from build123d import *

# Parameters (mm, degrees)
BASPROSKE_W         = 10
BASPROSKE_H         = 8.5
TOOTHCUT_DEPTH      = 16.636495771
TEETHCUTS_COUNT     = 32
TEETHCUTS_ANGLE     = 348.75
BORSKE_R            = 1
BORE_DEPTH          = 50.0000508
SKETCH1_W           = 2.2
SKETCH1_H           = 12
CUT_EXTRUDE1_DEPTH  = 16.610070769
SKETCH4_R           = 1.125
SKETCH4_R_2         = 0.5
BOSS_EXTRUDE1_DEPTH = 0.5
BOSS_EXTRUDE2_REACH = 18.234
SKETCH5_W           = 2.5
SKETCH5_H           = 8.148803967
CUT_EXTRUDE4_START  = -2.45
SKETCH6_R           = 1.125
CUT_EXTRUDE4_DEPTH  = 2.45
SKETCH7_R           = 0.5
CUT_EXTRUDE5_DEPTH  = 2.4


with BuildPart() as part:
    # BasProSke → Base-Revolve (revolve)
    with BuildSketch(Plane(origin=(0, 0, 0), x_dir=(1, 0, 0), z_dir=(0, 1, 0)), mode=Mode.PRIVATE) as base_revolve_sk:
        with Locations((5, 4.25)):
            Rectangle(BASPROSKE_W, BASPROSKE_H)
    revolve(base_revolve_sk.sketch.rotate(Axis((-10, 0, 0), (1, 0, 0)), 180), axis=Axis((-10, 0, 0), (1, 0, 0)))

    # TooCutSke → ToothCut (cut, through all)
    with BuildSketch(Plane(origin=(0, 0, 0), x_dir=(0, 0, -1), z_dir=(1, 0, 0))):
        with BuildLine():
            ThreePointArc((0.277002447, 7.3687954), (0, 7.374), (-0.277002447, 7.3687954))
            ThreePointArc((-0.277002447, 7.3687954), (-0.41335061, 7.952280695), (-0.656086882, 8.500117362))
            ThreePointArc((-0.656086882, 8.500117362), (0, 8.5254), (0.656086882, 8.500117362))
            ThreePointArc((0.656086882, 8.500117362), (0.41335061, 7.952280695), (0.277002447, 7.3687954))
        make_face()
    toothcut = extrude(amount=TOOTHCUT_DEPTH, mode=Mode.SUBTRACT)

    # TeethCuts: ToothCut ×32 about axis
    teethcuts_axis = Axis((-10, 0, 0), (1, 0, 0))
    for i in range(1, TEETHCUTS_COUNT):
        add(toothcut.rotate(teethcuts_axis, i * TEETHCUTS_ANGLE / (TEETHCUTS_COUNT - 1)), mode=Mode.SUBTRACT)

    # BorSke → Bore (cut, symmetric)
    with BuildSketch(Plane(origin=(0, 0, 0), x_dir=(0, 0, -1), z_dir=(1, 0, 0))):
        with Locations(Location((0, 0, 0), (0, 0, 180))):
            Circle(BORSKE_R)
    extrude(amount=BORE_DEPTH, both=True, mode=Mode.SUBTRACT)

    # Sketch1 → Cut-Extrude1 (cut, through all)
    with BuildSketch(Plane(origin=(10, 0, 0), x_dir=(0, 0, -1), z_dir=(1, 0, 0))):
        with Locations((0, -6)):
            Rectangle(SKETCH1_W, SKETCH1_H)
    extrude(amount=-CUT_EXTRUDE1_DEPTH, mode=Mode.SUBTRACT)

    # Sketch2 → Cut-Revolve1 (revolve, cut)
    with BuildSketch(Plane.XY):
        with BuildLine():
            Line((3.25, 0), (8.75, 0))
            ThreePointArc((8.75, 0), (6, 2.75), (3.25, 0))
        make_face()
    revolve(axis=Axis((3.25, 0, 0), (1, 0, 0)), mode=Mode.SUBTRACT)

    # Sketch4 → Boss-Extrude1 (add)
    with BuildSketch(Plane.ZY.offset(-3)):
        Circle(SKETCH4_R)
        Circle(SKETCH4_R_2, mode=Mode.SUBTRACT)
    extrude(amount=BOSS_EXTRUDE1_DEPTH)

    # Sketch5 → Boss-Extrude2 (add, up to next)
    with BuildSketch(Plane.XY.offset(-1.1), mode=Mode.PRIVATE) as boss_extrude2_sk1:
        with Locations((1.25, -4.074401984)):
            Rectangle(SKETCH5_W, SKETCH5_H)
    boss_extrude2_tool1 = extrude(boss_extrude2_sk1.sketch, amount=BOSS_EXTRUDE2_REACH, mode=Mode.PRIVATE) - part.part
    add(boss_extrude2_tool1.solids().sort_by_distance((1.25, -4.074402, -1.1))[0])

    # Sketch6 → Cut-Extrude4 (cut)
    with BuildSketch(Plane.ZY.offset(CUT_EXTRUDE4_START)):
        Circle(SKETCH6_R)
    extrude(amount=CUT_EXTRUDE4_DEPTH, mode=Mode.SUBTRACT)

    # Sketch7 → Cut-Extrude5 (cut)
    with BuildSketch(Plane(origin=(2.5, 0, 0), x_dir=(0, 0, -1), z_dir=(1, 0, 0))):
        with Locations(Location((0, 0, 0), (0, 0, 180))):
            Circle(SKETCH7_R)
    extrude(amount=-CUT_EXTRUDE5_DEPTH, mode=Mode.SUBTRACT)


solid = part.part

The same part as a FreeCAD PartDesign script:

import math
import FreeCAD as App
import Part
import Sketcher

V = App.Vector


def add_polygon(sketch, points):
    """Adds a closed chain of lines whose ends are joined by coincident constraints."""
    first, n = sketch.GeometryCount, len(points)
    for a, b in zip(points, points[1:] + points[:1]):
        sketch.addGeometry(Part.LineSegment(App.Vector(*a, 0), App.Vector(*b, 0)), False)
    for i in range(n):
        sketch.addConstraint(Sketcher.Constraint("Coincident", first + i, 2, first + (i + 1) % n, 1))

doc = App.newDocument("Part")
body = doc.addObject("PartDesign::Body", "Body")

# Sketch on XZ plane
sketch1 = body.newObject("Sketcher::SketchObject", "Sketch")
sketch1.AttachmentSupport = (doc.getObject("XZ_Plane"), [""])
sketch1.MapMode = "FlatFace"
add_polygon(sketch1, [(0, -8), (0, 0), (10, 0), (10, -8)])  # lines 0-3
sketch1.addConstraint([
    Sketcher.Constraint("Vertical", 0),
    Sketcher.Constraint("Horizontal", 1),
    Sketcher.Constraint("Vertical", 2),
    Sketcher.Constraint("Horizontal", 3),
    Sketcher.Constraint("Coincident", 0, 2, -1, 1),
    Sketcher.Constraint("DistanceX", 1, 1, 1, 2, 10.0),
    Sketcher.Constraint("DistanceY", 0, 1, 0, 2, 8.5),
])
revolution = body.newObject("PartDesign::Revolution", "Revolution")
revolution.Profile = sketch1
revolution.ReferenceAxis = (sketch1, ["H_Axis"])
revolution.Angle = 360

# Sketch on YZ plane
sketch2 = body.newObject("Sketcher::SketchObject", "Sketch001")
sketch2.AttachmentSupport = (doc.getObject("YZ_Plane"), [""])
sketch2.MapMode = "FlatFace"
sketch2.addGeometry([
    Part.ArcOfCircle(Part.Circle(V(0, 0, 0), V(0, 0, 1), 7.4), math.radians(-2.15), math.radians(2.15)),
    Part.ArcOfCircle(Part.Circle(V(6.9, -3.4, 0), V(0, 0, 1), 3.2), math.radians(61), math.radians(82)),
    Part.ArcOfCircle(Part.Circle(V(0, 0, 0), V(0, 0, 1), 8.5), math.radians(-4.41), math.radians(4.41)),
    Part.ArcOfCircle(Part.Circle(V(6.9, 3.4, 0), V(0, 0, 1), 3.2), math.radians(-82), math.radians(-61)),
], False)
sketch2.addConstraint([
    Sketcher.Constraint("Coincident", 0, 1, 1, 2),
    Sketcher.Constraint("Coincident", 1, 1, 2, 1),
    Sketcher.Constraint("Coincident", 2, 2, 3, 2),
    Sketcher.Constraint("Coincident", 3, 1, 0, 2),
    Sketcher.Constraint("Coincident", 0, 3, -1, 1),
    Sketcher.Constraint("Coincident", 2, 3, -1, 1),
    Sketcher.Constraint("Equal", 1, 3),
    Sketcher.Constraint("Symmetric", 1, 3, 3, 3, -1),
    Sketcher.Constraint("Radius", 1, 3.2),
    Sketcher.Constraint("Radius", 0, 7.374),
    Sketcher.Constraint("Radius", 2, 8.5254),
    Sketcher.Constraint("DistanceX", -1, 1, 1, 3, 6.935581),
    Sketcher.Constraint("DistanceX", 0, 1, 1, 1, 1.131322),
])
pocket1 = body.newObject("PartDesign::Pocket", "Pocket")
pocket1.Profile = sketch2
pocket1.Type = "ThroughAll"
pocket1.Reversed = True
doc.recompute()

polarpattern = body.newObject("PartDesign::PolarPattern", "PolarPattern")
polarpattern.Originals = [pocket1]
polarpattern.Axis = (doc.getObject("X_Axis"), [""])
polarpattern.Angle = 360
polarpattern.Occurrences = 32
body.Tip = polarpattern

# Sketch on YZ plane
sketch3 = body.newObject("Sketcher::SketchObject", "Sketch002")
sketch3.AttachmentSupport = (doc.getObject("YZ_Plane"), [""])
sketch3.MapMode = "FlatFace"
sketch3.addGeometry(Part.Circle(V(0, 0, 0), V(0, 0, 1), 1), False)
sketch3.addConstraint([
    Sketcher.Constraint("Coincident", 0, 3, -1, 1),
    Sketcher.Constraint("Diameter", 0, 2.0),
])
pocket2 = body.newObject("PartDesign::Pocket", "Pocket001")
pocket2.Profile = sketch3
pocket2.Length = 100.000102
pocket2.Midplane = True

# Sketch on YZ plane
sketch4 = body.newObject("Sketcher::SketchObject", "Sketch003")
sketch4.AttachmentSupport = (doc.getObject("YZ_Plane"), [""])
sketch4.MapMode = "FlatFace"
sketch4.AttachmentOffset = App.Placement(V(0, 0, 10), App.Rotation())
add_polygon(sketch4, [(0, 1.1), (-12, 1.1), (-12, -1.1), (0, -1.1)])  # lines 0-3
sketch4.addConstraint([
    Sketcher.Constraint("Horizontal", 0),
    Sketcher.Constraint("Vertical", 1),
    Sketcher.Constraint("Horizontal", 2),
    Sketcher.Constraint("Vertical", 3),
    Sketcher.Constraint("Symmetric", 2, 2, 3, 2, -1, 1),
    Sketcher.Constraint("DistanceX", 0, 2, 0, 1, 12.0),
    Sketcher.Constraint("DistanceY", 1, 2, 1, 1, 2.2),
])
pocket3 = body.newObject("PartDesign::Pocket", "Pocket002")
pocket3.Profile = sketch4
pocket3.Type = "ThroughAll"

# Sketch on XY plane
sketch5 = body.newObject("Sketcher::SketchObject", "Sketch004")
sketch5.AttachmentSupport = (doc.getObject("XY_Plane"), [""])
sketch5.MapMode = "FlatFace"
sketch5.addGeometry([
    Part.LineSegment(V(3.2, 0, 0), V(8.8, 0, 0)),
    Part.ArcOfCircle(Part.Circle(V(6, 0, 0), V(0, 0, 1), 2.8), math.radians(0), math.radians(180)),
], False)
sketch5.addConstraint([
    Sketcher.Constraint("Coincident", 0, 1, 1, 2),
    Sketcher.Constraint("Coincident", 1, 1, 0, 2),
    Sketcher.Constraint("Horizontal", 0),
    Sketcher.Constraint("PointOnObject", 1, 3, -1),
    Sketcher.Constraint("PointOnObject", 0, 1, -1),
    Sketcher.Constraint("Radius", 1, 2.75),
    Sketcher.Constraint("DistanceX", -1, 1, 1, 3, 6.0),
])
groove = body.newObject("PartDesign::Groove", "Groove")
groove.Profile = sketch5
groove.ReferenceAxis = (sketch5, ["H_Axis"])
groove.Angle = 360

# Sketch on YZ plane
sketch6 = body.newObject("Sketcher::SketchObject", "Sketch005")
sketch6.AttachmentSupport = (doc.getObject("YZ_Plane"), [""])
sketch6.MapMode = "FlatFace"
sketch6.AttachmentOffset = App.Placement(V(0, 0, 3), App.Rotation())
sketch6.addGeometry([
    Part.Circle(V(0, 0, 0), V(0, 0, 1), 1.1),
    Part.Circle(V(0, 0, 0), V(0, 0, 1), 0.5),
], False)
sketch6.addConstraint([
    Sketcher.Constraint("Coincident", 0, 3, -1, 1),
    Sketcher.Constraint("Coincident", 1, 3, -1, 1),
    Sketcher.Constraint("Diameter", 1, 1.0),
    Sketcher.Constraint("Diameter", 0, 2.25),
])
pad1 = body.newObject("PartDesign::Pad", "Pad")
pad1.Profile = sketch6
pad1.Length = 0.5
pad1.Reversed = True

# Sketch on XY plane
sketch7 = body.newObject("Sketcher::SketchObject", "Sketch006")
sketch7.AttachmentSupport = (doc.getObject("XY_Plane"), [""])
sketch7.MapMode = "FlatFace"
sketch7.AttachmentOffset = App.Placement(V(0, 0, -1.1), App.Rotation())
add_polygon(sketch7, [(0, 0), (0, -8.1), (2.5, -8.1), (2.5, 0)])  # lines 0-3
sketch7.addConstraint([
    Sketcher.Constraint("Vertical", 0),
    Sketcher.Constraint("Horizontal", 1),
    Sketcher.Constraint("Vertical", 2),
    Sketcher.Constraint("Horizontal", 3),
    Sketcher.Constraint("Coincident", 3, 2, -1, 1),
    Sketcher.Constraint("DistanceX", 1, 1, 1, 2, 2.5),
    Sketcher.Constraint("DistanceY", 0, 2, 0, 1, 8.148804),
])
pad2 = body.newObject("PartDesign::Pad", "Pad001")
pad2.Profile = sketch7
pad2.Type = "UpToFirst"

# Sketch on YZ plane
sketch8 = body.newObject("Sketcher::SketchObject", "Sketch007")
sketch8.AttachmentSupport = (doc.getObject("YZ_Plane"), [""])
sketch8.MapMode = "FlatFace"
sketch8.AttachmentOffset = App.Placement(V(0, 0, 2.45), App.Rotation())
sketch8.addGeometry(Part.Circle(V(0, 0, 0), V(0, 0, 1), 1.1), False)
sketch8.addConstraint([
    Sketcher.Constraint("Coincident", 0, 3, -1, 1),
    Sketcher.Constraint("Diameter", 0, 2.25),
])
pocket4 = body.newObject("PartDesign::Pocket", "Pocket003")
pocket4.Profile = sketch8
pocket4.Length = 2.45

# Sketch on YZ plane
sketch9 = body.newObject("Sketcher::SketchObject", "Sketch008")
sketch9.AttachmentSupport = (doc.getObject("YZ_Plane"), [""])
sketch9.MapMode = "FlatFace"
sketch9.AttachmentOffset = App.Placement(V(0, 0, 2.5), App.Rotation())
sketch9.addGeometry(Part.Circle(V(0, 0, 0), V(0, 0, 1), 0.5), False)
sketch9.addConstraint([
    Sketcher.Constraint("Coincident", 0, 3, -1, 1),
    Sketcher.Constraint("Diameter", 0, 1.0),
])
pocket5 = body.newObject("PartDesign::Pocket", "Pocket004")
pocket5.Profile = sketch9
pocket5.Length = 2.4

doc.recompute()
